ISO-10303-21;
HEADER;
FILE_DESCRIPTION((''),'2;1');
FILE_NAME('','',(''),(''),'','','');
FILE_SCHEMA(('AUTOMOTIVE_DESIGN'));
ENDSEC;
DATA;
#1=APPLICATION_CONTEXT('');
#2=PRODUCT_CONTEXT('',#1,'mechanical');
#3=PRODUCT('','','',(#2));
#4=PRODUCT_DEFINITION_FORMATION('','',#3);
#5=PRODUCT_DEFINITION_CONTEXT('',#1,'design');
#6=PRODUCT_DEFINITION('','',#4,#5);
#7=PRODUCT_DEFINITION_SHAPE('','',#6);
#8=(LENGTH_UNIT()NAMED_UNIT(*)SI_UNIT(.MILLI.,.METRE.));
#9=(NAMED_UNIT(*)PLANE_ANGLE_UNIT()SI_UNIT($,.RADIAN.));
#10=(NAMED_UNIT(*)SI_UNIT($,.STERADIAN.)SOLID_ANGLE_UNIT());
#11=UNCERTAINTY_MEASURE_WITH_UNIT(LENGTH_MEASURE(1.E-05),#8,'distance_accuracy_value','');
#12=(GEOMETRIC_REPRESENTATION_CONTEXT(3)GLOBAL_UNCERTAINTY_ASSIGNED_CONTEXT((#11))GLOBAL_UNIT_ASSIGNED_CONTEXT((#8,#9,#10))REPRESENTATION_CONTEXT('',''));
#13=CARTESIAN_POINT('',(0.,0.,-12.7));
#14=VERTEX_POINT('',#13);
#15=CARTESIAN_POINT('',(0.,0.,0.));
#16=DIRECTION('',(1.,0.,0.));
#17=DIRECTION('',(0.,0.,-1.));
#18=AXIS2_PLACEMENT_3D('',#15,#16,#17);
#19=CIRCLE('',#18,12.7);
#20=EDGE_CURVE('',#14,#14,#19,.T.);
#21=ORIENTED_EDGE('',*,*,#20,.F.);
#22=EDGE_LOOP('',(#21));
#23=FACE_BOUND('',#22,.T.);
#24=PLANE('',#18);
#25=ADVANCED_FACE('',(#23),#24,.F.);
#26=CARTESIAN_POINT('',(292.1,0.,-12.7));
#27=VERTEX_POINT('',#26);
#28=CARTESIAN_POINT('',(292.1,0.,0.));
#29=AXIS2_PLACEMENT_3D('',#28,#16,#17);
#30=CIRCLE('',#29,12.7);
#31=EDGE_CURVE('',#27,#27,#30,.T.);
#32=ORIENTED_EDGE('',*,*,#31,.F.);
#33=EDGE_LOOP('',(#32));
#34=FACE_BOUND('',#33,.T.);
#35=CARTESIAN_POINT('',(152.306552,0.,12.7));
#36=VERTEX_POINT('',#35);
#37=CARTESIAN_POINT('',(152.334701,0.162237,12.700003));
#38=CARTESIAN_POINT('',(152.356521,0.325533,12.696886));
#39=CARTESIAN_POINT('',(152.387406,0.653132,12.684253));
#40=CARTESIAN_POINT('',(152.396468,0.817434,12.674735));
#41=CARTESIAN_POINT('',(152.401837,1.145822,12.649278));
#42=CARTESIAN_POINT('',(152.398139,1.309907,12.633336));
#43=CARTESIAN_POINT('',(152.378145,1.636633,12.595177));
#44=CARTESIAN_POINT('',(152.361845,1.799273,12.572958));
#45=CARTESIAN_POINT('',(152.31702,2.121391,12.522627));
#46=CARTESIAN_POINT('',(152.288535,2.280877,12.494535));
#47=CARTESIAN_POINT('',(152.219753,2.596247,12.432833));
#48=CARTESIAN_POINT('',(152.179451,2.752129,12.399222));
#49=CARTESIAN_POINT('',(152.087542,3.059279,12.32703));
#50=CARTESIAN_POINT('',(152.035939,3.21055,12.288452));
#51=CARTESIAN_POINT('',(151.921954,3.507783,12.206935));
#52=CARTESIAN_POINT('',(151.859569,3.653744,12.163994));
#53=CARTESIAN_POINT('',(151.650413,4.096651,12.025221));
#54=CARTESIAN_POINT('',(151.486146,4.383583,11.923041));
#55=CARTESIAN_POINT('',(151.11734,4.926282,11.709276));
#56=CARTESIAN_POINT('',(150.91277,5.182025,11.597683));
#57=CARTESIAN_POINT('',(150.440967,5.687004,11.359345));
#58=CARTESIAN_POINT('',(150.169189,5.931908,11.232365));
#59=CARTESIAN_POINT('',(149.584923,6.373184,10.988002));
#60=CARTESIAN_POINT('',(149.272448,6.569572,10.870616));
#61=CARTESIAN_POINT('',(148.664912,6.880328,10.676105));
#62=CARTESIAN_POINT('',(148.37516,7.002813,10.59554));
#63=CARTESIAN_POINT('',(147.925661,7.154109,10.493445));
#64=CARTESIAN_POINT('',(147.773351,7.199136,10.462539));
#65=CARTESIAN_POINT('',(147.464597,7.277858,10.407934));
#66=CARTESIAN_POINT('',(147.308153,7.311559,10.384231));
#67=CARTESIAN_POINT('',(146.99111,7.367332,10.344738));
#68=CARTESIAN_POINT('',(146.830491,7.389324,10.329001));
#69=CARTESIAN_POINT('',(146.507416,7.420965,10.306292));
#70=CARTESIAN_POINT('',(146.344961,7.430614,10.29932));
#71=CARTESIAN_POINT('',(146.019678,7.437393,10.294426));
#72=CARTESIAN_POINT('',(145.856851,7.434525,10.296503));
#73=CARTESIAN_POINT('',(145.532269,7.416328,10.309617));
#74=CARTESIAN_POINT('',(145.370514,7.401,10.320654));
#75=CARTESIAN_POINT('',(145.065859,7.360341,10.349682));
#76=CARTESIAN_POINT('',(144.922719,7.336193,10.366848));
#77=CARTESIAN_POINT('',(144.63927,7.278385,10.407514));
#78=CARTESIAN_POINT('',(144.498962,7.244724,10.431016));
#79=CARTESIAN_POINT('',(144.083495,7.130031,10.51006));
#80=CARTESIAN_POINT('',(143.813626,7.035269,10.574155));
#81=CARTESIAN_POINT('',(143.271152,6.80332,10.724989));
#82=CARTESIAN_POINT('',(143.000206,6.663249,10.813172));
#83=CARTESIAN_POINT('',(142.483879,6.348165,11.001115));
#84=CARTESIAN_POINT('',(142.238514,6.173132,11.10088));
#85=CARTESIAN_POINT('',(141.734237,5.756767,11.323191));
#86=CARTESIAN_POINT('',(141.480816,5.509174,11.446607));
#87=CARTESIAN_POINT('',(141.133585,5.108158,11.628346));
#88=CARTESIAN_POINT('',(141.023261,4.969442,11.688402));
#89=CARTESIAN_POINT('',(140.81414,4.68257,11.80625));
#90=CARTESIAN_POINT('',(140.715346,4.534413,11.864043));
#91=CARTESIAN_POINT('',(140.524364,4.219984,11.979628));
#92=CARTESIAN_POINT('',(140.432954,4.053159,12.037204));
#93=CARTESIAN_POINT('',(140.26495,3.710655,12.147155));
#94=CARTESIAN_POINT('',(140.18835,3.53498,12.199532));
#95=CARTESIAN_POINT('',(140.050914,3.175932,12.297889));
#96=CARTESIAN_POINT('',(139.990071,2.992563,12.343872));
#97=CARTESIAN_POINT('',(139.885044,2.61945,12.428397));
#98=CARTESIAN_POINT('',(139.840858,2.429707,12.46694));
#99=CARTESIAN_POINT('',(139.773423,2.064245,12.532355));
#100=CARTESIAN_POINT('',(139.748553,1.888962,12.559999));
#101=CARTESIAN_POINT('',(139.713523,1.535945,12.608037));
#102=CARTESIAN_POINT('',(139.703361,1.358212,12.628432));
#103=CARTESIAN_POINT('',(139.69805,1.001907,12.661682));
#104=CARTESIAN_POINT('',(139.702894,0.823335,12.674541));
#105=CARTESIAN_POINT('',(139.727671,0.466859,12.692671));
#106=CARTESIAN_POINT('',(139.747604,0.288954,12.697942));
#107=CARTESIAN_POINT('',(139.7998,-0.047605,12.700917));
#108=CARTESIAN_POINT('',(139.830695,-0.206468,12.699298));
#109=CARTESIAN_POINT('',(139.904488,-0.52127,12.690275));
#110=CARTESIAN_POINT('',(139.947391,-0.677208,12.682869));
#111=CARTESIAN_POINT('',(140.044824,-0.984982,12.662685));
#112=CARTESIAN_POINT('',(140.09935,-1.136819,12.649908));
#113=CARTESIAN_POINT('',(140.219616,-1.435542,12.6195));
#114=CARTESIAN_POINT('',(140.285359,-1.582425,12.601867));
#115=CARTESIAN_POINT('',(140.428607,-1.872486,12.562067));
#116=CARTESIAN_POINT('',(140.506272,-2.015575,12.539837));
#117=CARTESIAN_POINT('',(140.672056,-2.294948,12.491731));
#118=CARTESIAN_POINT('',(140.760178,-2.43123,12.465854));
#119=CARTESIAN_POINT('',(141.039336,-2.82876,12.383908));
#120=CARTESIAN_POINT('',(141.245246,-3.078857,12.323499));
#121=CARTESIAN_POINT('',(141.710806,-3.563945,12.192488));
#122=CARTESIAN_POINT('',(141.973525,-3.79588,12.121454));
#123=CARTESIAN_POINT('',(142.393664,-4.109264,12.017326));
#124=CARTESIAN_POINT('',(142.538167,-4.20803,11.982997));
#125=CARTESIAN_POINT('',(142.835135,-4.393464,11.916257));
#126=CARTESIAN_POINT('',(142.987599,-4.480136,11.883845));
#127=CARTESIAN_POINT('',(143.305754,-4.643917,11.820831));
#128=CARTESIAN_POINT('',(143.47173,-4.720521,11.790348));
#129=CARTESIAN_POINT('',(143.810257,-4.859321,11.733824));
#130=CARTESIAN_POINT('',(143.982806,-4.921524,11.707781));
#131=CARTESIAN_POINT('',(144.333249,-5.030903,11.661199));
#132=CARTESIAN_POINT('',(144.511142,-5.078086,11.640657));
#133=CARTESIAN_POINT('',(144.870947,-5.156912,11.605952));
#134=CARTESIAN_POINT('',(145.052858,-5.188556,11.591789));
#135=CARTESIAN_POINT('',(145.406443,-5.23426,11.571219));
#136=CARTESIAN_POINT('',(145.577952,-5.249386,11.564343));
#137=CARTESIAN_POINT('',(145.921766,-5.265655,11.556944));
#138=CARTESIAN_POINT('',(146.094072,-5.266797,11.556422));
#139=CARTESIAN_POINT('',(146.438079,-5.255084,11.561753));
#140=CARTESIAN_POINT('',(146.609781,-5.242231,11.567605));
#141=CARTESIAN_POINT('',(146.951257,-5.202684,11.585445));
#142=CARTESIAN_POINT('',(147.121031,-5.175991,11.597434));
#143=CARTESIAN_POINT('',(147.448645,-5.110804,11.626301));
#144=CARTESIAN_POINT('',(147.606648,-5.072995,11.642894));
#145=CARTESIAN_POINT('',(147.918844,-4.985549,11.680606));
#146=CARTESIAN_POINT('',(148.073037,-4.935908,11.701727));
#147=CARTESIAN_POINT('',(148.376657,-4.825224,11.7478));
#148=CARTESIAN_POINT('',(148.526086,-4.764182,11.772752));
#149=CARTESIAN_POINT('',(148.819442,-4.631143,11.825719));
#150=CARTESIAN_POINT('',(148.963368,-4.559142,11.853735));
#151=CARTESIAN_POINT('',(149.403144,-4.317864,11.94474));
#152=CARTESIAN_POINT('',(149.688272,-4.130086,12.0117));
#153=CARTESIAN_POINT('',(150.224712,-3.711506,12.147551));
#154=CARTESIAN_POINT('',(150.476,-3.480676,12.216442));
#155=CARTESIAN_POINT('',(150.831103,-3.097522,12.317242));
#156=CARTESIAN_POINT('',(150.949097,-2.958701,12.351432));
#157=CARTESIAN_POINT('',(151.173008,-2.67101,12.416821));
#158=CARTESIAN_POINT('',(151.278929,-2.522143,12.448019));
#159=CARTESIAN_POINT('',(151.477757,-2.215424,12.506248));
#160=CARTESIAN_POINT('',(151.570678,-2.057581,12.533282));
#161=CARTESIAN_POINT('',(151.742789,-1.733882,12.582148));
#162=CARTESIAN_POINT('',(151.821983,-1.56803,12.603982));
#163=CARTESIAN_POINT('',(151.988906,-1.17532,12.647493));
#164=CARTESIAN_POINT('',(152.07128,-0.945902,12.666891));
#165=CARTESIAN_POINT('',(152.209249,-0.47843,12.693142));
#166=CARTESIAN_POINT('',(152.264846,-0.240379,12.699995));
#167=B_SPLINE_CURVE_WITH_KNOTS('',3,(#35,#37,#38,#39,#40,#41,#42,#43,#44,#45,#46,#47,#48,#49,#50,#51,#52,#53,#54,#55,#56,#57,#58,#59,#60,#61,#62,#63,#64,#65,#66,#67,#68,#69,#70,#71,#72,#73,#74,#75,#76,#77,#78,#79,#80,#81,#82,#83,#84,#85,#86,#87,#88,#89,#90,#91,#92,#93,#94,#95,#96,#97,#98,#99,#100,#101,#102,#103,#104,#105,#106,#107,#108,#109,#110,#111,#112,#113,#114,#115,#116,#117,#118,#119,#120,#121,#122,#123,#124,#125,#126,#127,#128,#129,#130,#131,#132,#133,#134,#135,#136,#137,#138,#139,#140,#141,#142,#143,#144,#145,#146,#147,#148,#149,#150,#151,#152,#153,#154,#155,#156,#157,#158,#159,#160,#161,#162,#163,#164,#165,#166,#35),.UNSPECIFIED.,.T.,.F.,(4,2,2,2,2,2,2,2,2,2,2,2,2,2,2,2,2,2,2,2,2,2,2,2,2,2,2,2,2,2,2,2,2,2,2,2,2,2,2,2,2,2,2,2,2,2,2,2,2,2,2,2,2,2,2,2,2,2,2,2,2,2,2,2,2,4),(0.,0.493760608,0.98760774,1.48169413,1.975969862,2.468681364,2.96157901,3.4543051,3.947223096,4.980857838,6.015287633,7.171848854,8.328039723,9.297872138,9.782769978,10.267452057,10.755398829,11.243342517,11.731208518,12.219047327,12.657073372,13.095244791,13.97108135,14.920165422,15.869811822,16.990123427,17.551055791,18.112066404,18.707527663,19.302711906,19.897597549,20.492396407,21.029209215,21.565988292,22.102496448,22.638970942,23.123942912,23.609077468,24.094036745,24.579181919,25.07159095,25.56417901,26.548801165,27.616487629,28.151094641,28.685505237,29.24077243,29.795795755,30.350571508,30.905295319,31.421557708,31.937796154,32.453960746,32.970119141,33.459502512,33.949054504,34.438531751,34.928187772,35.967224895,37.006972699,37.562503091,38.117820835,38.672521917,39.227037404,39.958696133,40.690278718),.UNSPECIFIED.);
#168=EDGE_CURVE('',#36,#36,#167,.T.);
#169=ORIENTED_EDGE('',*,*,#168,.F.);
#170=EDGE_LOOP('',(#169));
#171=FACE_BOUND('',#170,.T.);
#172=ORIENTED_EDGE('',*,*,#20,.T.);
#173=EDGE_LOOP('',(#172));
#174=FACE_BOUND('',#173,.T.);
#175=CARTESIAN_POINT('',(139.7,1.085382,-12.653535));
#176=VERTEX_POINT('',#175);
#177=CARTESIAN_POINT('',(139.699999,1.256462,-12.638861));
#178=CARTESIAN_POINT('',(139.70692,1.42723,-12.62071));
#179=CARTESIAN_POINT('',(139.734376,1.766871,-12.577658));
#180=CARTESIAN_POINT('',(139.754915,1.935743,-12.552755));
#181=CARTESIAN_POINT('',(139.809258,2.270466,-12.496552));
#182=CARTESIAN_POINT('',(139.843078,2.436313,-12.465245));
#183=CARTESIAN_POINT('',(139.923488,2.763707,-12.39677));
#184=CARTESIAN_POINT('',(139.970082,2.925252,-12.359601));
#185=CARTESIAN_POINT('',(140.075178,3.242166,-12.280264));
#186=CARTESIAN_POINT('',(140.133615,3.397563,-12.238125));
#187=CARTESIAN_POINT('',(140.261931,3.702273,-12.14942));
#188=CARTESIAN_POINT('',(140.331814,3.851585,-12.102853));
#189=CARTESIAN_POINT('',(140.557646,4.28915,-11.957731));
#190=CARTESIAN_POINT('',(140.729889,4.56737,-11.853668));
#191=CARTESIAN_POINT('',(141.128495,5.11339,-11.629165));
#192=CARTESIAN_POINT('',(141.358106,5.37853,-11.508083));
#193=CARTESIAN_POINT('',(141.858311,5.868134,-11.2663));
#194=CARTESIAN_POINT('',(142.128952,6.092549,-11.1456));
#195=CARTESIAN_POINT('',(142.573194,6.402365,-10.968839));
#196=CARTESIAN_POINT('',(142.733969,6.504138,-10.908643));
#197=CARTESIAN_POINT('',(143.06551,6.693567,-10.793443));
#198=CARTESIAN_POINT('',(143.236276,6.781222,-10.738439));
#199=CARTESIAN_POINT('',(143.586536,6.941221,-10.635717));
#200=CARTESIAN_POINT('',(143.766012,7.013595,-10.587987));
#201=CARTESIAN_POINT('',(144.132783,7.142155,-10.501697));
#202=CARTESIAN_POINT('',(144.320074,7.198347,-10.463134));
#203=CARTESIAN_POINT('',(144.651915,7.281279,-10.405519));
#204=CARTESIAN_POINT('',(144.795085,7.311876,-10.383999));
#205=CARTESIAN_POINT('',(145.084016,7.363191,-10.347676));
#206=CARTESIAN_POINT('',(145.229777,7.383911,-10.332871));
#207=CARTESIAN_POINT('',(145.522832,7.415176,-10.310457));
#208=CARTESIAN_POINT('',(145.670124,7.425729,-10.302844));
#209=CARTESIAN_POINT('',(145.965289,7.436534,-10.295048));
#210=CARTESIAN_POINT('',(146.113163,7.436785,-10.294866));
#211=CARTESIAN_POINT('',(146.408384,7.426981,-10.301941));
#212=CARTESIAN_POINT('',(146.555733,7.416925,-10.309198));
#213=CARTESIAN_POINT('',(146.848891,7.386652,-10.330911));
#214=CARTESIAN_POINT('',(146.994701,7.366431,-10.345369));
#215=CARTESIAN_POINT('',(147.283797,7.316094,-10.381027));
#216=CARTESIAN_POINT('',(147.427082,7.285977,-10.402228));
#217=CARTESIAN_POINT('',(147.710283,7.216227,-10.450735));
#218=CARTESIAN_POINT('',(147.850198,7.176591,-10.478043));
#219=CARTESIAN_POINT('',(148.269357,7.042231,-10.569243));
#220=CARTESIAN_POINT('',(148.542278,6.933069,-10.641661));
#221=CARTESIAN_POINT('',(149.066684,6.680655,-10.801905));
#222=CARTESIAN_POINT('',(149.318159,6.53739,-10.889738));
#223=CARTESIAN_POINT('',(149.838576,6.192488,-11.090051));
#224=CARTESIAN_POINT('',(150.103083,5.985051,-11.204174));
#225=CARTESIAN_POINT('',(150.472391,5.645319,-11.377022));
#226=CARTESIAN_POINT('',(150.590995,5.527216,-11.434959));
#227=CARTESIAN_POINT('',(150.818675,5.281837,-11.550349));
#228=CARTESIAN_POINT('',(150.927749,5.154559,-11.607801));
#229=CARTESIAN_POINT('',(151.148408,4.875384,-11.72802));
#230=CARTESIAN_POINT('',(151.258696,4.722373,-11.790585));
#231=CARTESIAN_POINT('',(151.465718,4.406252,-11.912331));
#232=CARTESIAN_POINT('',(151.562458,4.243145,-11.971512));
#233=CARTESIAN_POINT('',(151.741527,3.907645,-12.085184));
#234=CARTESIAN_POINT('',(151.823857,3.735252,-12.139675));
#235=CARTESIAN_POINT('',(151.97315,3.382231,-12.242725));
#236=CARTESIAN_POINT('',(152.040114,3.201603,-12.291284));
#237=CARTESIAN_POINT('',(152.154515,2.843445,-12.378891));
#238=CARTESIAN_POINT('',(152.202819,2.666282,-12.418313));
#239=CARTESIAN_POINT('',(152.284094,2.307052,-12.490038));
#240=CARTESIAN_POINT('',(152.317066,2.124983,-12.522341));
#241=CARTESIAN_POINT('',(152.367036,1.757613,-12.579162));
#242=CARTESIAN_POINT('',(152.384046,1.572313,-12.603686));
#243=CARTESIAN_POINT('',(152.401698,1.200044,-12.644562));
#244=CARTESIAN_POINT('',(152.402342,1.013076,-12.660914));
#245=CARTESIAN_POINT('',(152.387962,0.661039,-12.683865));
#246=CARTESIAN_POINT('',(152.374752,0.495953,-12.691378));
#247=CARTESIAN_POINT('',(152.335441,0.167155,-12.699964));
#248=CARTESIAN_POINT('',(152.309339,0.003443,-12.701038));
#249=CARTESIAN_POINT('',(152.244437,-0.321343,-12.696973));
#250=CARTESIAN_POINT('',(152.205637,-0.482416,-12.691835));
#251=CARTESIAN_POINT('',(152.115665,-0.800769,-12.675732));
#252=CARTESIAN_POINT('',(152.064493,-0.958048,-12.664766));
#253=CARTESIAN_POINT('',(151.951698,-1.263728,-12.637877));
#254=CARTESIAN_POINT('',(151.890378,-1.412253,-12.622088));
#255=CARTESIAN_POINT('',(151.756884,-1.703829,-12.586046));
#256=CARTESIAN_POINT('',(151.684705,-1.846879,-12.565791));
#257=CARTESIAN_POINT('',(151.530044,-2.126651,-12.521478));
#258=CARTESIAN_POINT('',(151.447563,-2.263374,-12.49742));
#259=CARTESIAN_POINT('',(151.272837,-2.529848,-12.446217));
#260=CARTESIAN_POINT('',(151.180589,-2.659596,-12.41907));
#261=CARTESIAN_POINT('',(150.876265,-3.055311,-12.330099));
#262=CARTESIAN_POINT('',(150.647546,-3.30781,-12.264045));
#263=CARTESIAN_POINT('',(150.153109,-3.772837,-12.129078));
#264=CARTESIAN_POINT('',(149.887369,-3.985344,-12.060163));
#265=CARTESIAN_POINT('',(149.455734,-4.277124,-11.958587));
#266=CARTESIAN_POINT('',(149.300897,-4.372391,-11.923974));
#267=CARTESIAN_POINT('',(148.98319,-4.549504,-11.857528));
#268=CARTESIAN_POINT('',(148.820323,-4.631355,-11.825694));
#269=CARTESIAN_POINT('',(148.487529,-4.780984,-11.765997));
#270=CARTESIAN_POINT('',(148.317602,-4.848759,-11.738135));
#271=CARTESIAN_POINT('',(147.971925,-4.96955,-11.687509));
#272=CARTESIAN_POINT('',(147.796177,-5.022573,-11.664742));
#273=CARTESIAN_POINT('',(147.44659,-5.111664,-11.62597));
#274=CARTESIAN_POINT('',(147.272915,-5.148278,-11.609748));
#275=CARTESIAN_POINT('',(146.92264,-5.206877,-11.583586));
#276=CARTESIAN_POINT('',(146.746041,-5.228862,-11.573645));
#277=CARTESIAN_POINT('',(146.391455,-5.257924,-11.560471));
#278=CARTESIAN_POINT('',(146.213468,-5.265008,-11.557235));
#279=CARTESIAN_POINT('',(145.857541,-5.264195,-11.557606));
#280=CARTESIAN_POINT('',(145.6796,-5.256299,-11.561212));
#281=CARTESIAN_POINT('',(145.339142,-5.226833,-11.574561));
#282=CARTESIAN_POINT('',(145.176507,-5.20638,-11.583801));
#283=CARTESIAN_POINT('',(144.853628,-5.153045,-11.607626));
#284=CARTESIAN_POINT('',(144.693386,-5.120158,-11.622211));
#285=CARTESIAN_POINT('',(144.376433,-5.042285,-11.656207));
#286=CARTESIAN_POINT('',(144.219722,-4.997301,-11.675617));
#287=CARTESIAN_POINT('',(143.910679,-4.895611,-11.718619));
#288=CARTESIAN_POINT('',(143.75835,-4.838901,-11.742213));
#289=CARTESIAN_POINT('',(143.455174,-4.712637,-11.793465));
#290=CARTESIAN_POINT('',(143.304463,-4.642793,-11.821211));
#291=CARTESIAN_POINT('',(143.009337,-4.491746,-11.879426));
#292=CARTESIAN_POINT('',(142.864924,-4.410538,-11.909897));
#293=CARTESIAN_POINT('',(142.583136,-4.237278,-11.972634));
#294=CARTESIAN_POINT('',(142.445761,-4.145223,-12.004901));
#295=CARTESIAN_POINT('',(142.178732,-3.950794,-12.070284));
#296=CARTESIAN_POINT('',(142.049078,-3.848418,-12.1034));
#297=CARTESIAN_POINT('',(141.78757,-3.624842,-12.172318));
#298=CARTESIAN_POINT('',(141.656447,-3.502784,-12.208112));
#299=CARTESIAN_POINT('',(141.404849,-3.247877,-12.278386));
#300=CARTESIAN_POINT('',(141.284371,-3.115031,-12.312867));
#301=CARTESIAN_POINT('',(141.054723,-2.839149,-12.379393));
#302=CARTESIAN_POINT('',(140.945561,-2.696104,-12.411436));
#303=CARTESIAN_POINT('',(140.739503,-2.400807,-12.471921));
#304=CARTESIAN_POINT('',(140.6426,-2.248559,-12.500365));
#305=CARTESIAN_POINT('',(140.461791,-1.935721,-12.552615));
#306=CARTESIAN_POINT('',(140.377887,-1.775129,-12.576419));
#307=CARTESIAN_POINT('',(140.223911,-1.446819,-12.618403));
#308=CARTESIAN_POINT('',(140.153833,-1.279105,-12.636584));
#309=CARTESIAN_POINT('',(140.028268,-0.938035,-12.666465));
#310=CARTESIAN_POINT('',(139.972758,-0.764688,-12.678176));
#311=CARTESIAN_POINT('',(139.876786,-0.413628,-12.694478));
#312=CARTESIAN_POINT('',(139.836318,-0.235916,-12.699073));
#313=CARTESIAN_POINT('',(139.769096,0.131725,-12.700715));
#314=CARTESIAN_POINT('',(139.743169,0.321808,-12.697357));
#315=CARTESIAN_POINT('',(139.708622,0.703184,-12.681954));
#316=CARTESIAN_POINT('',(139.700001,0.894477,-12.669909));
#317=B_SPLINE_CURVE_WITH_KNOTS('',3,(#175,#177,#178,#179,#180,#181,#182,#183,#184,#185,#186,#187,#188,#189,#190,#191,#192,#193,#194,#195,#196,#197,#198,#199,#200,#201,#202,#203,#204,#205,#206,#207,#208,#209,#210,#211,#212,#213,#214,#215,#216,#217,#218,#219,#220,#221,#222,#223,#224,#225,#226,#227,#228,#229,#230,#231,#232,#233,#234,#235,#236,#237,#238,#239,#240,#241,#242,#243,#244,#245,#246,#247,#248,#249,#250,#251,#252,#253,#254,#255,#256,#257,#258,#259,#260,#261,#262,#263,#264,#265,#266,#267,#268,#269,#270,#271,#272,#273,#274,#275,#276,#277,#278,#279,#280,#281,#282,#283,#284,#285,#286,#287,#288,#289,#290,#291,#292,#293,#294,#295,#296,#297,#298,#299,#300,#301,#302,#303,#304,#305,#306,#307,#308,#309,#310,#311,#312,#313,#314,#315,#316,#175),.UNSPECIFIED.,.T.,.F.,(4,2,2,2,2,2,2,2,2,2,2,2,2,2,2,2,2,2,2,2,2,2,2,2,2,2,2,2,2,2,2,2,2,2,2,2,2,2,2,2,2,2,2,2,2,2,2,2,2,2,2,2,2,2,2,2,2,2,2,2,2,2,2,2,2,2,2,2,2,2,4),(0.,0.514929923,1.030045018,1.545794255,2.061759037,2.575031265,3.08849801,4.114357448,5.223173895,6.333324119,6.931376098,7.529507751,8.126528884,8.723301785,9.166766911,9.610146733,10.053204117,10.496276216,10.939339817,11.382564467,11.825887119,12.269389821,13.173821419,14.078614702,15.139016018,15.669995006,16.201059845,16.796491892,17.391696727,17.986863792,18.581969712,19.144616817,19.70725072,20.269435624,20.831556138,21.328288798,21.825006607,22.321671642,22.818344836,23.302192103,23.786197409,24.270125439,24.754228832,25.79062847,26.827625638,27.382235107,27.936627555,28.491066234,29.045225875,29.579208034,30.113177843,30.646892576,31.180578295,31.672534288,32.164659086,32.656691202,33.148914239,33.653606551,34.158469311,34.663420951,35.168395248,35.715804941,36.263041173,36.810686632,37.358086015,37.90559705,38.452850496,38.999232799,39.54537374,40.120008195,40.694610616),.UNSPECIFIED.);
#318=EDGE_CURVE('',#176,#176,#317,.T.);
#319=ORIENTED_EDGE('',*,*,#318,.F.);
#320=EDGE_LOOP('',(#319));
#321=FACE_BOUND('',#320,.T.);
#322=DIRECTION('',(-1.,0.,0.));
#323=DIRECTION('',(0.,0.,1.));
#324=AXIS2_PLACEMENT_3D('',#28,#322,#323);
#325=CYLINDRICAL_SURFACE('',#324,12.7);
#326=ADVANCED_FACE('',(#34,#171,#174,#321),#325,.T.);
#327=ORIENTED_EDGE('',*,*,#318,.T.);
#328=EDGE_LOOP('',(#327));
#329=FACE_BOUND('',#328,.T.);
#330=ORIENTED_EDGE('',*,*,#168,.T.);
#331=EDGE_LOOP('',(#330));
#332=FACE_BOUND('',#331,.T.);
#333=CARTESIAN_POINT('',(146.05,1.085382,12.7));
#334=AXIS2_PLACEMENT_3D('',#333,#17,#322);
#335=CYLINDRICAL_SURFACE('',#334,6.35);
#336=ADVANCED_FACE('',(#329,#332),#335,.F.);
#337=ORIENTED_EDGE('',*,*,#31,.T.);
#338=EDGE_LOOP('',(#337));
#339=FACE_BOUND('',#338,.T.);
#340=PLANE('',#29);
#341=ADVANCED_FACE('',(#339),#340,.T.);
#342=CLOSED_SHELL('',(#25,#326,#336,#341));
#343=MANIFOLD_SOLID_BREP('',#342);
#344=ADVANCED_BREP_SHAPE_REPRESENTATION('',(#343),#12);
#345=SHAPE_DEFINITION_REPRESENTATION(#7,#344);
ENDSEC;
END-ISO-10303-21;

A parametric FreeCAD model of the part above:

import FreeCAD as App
import Part
import Sketcher
Q = App.Units.Quantity

doc = App.newDocument("Part")
body = doc.addObject("PartDesign::Body", "Body")

# Sketch on YZ plane
sketch1 = doc.addObject("Sketcher::SketchObject", "Sketch")
body.addObject(sketch1)
sketch1.AttachmentSupport = (doc.YZ_Plane, [""])
sketch1.MapMode = "FlatFace"
sketch1.addGeometry(Part.Circle(App.Vector(0, 0, 0), App.Vector(0, 0, 1), 13), False)
sketch1.addConstraint(Sketcher.Constraint("Coincident", 0, 3, -1, 1))
sketch1.addConstraint(Sketcher.Constraint("Diameter", 0, Q("1 in")))
pad1 = doc.addObject("PartDesign::Pad", "Pad")
body.addObject(pad1)
pad1.Profile = sketch1
pad1.Length = Q("11.5 in")

# Sketch on XY plane
sketch2 = doc.addObject("Sketcher::SketchObject", "Sketch001")
body.addObject(sketch2)
sketch2.AttachmentSupport = (doc.XY_Plane, [""])
sketch2.MapMode = "FlatFace"
sketch2.addGeometry(Part.Circle(App.Vector(146, 1, 0), App.Vector(0, 0, 1), 6), False)
sketch2.addConstraint(Sketcher.Constraint("Diameter", 0, Q("0.5 in")))
sketch2.addConstraint(Sketcher.Constraint("DistanceX", -1, 1, 0, 3, Q("5.75 in")))
sketch2.addConstraint(Sketcher.Constraint("DistanceY", -1, 1, 0, 3, 1.085382))
pocket1 = doc.addObject("PartDesign::Pocket", "Pocket")
body.addObject(pocket1)
pocket1.Profile = sketch2
pocket1.Type = "ThroughAll"
pocket1.Midplane = True

doc.recompute()
